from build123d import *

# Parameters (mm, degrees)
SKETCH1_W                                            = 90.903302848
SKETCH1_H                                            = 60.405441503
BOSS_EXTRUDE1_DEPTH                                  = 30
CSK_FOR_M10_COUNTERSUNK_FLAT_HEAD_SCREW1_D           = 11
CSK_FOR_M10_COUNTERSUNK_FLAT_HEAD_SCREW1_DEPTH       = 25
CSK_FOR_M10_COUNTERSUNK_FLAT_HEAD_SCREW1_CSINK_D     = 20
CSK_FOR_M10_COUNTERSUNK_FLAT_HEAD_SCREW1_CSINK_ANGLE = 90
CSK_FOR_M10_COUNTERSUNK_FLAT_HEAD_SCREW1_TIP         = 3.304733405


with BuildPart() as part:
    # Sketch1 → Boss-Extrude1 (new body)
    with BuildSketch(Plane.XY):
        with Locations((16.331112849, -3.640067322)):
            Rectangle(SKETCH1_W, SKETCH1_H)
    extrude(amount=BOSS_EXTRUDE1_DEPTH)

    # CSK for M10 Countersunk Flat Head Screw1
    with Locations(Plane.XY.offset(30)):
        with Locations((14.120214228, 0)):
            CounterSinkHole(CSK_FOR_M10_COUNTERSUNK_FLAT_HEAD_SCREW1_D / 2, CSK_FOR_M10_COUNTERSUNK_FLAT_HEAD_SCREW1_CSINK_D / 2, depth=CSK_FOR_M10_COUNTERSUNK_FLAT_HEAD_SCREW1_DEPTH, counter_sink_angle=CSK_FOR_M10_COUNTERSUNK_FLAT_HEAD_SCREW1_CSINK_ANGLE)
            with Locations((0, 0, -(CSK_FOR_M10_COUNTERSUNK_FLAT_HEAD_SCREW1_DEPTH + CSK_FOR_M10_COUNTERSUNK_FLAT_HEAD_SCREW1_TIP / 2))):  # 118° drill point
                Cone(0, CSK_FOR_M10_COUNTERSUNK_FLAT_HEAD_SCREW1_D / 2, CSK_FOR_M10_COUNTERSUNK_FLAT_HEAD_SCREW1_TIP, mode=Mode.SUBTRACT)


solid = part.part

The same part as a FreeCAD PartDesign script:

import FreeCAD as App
import Part
import Sketcher
Q = App.Units.Quantity

doc = App.newDocument("Part")
body = doc.addObject("PartDesign::Body", "Body")

sketch1 = body.newObject("Sketcher::SketchObject", "Sketch")
sketch1.AttachmentSupport = (doc.getObject("XY_Plane"), [""])
sketch1.MapMode = "FlatFace"
sketch1.addGeometry([
    Part.LineSegment(App.Vector(-29.120539, 26.562653, 0), App.Vector(-29.120539, -33.842788, 0)),
    Part.LineSegment(App.Vector(-29.120539, -33.842788, 0), App.Vector(61.782764, -33.842788, 0)),
    Part.LineSegment(App.Vector(61.782764, -33.842788, 0), App.Vector(61.782764, 26.562653, 0)),
    Part.LineSegment(App.Vector(61.782764, 26.562653, 0), App.Vector(-29.120539, 26.562653, 0)),
], False)
sketch1.addConstraint([
    Sketcher.Constraint("Coincident", 0, 2, 1, 1),
    Sketcher.Constraint("Coincident", 1, 2, 2, 1),
    Sketcher.Constraint("Coincident", 2, 2, 3, 1),
    Sketcher.Constraint("Coincident", 3, 2, 0, 1),
    Sketcher.Constraint("Vertical", 0),
    Sketcher.Constraint("Horizontal", 1),
    Sketcher.Constraint("Vertical", 2),
    Sketcher.Constraint("Horizontal", 3),
    Sketcher.Constraint("DistanceY", 0, 2, 0, 1, Q("60.405442 mm")),
    Sketcher.Constraint("DistanceX", 1, 1, 1, 2, Q("90.903303 mm")),
    Sketcher.Constraint("DistanceX", 0, 2, -1, 1, Q("29.120539 mm")),
    Sketcher.Constraint("DistanceY", 0, 2, -1, 1, Q("33.842788 mm")),
])
pad1 = body.newObject("PartDesign::Pad", "Pad")
pad1.Profile = sketch1
pad1.Length = 30

sketch2 = body.newObject("Sketcher::SketchObject", "Sketch001")
sketch2.AttachmentSupport = (doc.getObject("XY_Plane"), [""])
sketch2.MapMode = "FlatFace"
sketch2.AttachmentOffset = App.Placement(App.Vector(0, 0, 30), App.Rotation())
sketch2.addGeometry(Part.Circle(App.Vector(14.120214, 0, 0), App.Vector(0, 0, 1), 5.5), False)
sketch2.addConstraint([
    Sketcher.Constraint("PointOnObject", 0, 3, -1),
    Sketcher.Constraint("Diameter", 0, Q("11 mm")),
    Sketcher.Constraint("DistanceX", -1, 1, 0, 3, Q("14.120214 mm")),
])
doc.recompute()
hole = body.newObject("PartDesign::Hole", "Hole")
hole.Profile = sketch2
hole.ThreadType = "None"
hole.Diameter = 11
hole.DepthType = "Dimension"
hole.Depth = 25
hole.DrillPoint = "Angled"
hole.DrillPointAngle = 118
hole.HoleCutType = "Countersink"
hole.HoleCutDiameter = 20
hole.HoleCutCountersinkAngle = 90

doc.recompute()
